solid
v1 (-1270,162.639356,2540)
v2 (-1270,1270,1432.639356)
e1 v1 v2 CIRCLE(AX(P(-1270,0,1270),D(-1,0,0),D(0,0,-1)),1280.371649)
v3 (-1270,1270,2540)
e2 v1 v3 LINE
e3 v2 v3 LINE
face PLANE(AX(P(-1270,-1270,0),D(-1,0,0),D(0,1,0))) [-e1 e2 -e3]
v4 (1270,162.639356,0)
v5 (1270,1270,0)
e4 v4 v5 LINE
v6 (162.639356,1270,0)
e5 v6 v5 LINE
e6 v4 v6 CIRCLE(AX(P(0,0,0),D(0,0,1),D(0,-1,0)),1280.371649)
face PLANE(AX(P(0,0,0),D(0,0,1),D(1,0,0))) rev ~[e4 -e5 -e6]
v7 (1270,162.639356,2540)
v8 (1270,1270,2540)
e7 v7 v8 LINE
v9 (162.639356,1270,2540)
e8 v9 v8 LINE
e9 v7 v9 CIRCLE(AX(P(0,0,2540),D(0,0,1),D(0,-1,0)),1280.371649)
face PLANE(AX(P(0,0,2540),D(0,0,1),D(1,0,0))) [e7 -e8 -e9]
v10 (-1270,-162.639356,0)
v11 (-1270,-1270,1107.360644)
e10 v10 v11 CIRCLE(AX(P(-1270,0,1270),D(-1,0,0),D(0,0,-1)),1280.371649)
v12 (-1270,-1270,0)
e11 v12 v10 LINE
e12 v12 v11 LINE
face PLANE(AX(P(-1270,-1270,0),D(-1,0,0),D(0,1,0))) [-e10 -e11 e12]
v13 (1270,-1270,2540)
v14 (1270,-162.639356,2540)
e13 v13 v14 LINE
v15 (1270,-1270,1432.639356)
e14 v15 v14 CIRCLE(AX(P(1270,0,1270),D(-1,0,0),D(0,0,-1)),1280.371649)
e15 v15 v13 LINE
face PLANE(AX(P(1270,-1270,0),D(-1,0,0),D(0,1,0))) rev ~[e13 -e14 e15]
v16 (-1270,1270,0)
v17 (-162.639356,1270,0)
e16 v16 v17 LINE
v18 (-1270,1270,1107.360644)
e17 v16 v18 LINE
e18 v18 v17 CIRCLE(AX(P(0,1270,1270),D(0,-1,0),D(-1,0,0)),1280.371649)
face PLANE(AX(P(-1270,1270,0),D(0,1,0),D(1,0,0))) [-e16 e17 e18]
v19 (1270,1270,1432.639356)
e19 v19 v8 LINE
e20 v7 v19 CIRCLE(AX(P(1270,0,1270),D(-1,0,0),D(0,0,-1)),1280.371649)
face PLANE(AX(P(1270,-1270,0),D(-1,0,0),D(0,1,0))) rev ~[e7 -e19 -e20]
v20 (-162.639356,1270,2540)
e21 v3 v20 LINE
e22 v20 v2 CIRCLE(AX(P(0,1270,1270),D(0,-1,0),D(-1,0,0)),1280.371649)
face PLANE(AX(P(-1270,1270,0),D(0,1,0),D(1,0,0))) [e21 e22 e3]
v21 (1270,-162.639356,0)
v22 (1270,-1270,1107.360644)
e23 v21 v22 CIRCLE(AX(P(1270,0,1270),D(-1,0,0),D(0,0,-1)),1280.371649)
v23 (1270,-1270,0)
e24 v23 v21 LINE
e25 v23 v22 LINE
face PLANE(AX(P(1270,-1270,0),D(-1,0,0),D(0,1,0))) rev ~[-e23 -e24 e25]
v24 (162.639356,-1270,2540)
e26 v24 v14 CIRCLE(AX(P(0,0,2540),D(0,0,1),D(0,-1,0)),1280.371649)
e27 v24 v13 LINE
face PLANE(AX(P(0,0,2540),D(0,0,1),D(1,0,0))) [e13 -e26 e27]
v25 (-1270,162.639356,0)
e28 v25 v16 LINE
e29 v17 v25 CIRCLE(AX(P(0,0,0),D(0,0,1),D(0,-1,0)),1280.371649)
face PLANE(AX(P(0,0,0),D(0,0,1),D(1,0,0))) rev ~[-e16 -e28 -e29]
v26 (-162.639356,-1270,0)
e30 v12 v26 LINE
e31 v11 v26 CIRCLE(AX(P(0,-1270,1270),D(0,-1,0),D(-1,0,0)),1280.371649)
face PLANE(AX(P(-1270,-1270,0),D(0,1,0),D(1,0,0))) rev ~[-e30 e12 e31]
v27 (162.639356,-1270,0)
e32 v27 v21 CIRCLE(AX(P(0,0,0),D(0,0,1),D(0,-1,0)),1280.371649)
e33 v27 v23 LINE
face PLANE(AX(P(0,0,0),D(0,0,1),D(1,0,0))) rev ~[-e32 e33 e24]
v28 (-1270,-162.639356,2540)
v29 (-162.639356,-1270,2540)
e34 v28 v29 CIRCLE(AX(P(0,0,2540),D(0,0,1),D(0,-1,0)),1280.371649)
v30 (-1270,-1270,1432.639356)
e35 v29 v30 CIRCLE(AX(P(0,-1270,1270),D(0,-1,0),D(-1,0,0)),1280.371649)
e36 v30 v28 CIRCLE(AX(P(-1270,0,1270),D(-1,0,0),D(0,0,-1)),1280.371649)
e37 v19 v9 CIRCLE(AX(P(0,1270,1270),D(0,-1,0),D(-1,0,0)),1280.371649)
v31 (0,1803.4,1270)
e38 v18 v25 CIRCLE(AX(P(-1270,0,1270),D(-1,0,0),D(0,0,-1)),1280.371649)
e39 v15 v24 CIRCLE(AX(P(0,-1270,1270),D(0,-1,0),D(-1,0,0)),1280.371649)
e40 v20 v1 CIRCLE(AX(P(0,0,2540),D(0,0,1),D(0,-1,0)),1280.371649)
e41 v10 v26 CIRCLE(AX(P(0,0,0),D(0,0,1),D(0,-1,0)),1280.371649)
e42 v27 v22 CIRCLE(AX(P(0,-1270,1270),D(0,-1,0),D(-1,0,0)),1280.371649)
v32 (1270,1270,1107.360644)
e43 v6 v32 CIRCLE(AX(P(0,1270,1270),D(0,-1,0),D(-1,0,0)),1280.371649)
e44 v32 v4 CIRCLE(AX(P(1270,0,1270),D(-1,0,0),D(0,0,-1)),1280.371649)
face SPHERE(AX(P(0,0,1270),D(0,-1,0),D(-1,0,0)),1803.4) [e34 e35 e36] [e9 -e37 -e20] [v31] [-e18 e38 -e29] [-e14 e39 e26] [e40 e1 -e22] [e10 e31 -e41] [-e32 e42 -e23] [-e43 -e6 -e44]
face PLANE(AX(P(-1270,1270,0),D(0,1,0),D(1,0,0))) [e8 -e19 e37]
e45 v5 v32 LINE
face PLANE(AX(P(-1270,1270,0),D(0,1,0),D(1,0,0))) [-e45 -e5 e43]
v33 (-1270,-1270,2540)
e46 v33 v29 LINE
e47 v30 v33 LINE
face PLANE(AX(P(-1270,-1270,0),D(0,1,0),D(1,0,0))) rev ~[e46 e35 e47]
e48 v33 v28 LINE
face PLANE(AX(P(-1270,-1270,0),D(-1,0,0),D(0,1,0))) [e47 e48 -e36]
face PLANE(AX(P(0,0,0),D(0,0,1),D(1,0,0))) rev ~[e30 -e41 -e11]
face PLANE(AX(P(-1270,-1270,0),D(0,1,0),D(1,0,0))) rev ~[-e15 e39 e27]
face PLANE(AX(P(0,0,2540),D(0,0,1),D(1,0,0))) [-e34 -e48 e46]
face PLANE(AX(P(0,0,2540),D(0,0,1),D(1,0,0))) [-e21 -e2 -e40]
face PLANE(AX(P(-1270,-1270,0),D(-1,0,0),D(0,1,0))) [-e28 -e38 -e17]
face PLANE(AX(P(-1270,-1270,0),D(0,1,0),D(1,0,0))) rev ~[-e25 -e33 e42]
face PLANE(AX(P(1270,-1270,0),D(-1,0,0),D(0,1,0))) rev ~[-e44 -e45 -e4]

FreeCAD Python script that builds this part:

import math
import FreeCAD as App
import Part
import Sketcher
Q = App.Units.Quantity


def add_polygon(sketch, points):
    """Adds a closed chain of lines whose ends are joined by coincident constraints."""
    first, n = sketch.GeometryCount, len(points)
    for a, b in zip(points, points[1:] + points[:1]):
        sketch.addGeometry(Part.LineSegment(App.Vector(*a, 0), App.Vector(*b, 0)), False)
    for i in range(n):
        sketch.addConstraint(Sketcher.Constraint("Coincident", first + i, 2, first + (i + 1) % n, 1))

doc = App.newDocument("Part")
body = doc.addObject("PartDesign::Body", "Body")

sketch1 = doc.addObject("Sketcher::SketchObject", "Sketch")
body.addObject(sketch1)
sketch1.AttachmentSupport = (doc.XY_Plane, [""])
sketch1.MapMode = "FlatFace"
add_polygon(sketch1, [(-1270, 1270), (-1270, -1270), (1270, -1270), (1270, 1270)])
sketch1.addConstraint(Sketcher.Constraint("Vertical", 0))
sketch1.addConstraint(Sketcher.Constraint("Horizontal", 1))
sketch1.addConstraint(Sketcher.Constraint("Vertical", 2))
sketch1.addConstraint(Sketcher.Constraint("Horizontal", 3))
sketch1.addConstraint(Sketcher.Constraint("Symmetric", 0, 2, 2, 2, -1, 1))
sketch1.addConstraint(Sketcher.Constraint("Equal", 3, 0))
sketch1.addConstraint(Sketcher.Constraint("DistanceX", 1, 1, 1, 2, Q("100 in")))
pad1 = doc.addObject("PartDesign::Pad", "Pad")
body.addObject(pad1)
pad1.Profile = sketch1
pad1.Length = Q("100 in")

sketch2 = doc.addObject("Sketcher::SketchObject", "Sketch001")
body.addObject(sketch2)
sketch2.AttachmentSupport = (doc.XY_Plane, [""])
sketch2.MapMode = "FlatFace"
sketch2.AttachmentOffset = App.Placement(App.Vector(0, 0, 50 * 25.4), App.Rotation())
sketch2.addGeometry(Part.LineSegment(App.Vector(0, -1803, 0), App.Vector(0, 1803, 0)), False)
sketch2.addGeometry(Part.ArcOfCircle(Part.Circle(App.Vector(0, 0, 0), App.Vector(0, 0, 1), 1803), math.radians(90), math.radians(270)), False)
sketch2.addConstraint(Sketcher.Constraint("Coincident", 0, 1, 1, 2))
sketch2.addConstraint(Sketcher.Constraint("Coincident", 1, 1, 0, 2))
sketch2.addConstraint(Sketcher.Constraint("Vertical", 0))
sketch2.addConstraint(Sketcher.Constraint("Coincident", 1, 3, -1, 1))
sketch2.addConstraint(Sketcher.Constraint("PointOnObject", 0, 1, -2))
sketch2.addConstraint(Sketcher.Constraint("Radius", 1, Q("71 in")))
revolution = doc.addObject("PartDesign::Revolution", "Revolution")
body.addObject(revolution)
revolution.Profile = sketch2
revolution.ReferenceAxis = (sketch2, ["V_Axis"])
revolution.Angle = 360

doc.recompute()
